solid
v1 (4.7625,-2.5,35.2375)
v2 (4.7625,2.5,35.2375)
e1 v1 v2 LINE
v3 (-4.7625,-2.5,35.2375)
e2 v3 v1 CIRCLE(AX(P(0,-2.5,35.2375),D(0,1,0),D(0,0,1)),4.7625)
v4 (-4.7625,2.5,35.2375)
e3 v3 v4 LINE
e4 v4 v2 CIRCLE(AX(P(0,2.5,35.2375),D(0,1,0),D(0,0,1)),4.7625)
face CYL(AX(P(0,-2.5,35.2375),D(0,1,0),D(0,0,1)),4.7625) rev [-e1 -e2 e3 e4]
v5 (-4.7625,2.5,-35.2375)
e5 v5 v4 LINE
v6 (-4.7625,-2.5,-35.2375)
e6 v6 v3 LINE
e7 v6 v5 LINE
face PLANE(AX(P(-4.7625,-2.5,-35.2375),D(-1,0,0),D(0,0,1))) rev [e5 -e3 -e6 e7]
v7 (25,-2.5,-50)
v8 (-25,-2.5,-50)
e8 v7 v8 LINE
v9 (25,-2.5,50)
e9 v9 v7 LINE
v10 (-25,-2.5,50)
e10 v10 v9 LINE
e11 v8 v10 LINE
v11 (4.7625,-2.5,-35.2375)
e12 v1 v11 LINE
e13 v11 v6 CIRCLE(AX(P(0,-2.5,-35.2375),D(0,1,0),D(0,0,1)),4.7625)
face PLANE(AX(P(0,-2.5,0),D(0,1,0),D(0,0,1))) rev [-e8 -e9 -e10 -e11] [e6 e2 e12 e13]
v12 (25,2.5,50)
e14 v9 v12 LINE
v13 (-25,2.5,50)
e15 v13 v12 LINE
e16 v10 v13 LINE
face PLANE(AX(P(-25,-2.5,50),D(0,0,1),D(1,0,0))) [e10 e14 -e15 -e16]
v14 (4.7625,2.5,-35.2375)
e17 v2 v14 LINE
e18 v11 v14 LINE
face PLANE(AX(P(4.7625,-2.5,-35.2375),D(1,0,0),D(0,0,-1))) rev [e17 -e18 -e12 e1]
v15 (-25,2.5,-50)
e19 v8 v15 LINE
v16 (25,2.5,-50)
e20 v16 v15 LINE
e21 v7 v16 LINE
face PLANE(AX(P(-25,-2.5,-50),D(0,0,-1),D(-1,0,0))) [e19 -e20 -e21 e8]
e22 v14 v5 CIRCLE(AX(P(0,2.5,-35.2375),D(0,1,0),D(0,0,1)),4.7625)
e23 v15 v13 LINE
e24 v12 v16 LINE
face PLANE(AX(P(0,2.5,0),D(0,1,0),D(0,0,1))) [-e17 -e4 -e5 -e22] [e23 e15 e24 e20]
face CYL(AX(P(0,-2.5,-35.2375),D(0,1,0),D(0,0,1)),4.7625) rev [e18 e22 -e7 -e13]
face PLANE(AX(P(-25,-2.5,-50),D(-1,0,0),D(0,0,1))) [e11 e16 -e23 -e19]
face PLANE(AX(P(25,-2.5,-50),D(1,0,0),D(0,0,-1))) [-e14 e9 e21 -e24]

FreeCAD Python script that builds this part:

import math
import FreeCAD as App
import Part
import Sketcher

V = App.Vector
Q = App.Units.Quantity


def add_polygon(sketch, points):
    """Adds a closed chain of lines whose ends are joined by coincident constraints."""
    first, n = sketch.GeometryCount, len(points)
    for a, b in zip(points, points[1:] + points[:1]):
        sketch.addGeometry(Part.LineSegment(App.Vector(*a, 0), App.Vector(*b, 0)), False)
    for i in range(n):
        sketch.addConstraint(Sketcher.Constraint("Coincident", first + i, 2, first + (i + 1) % n, 1))

doc = App.newDocument("Part")
params = doc.addObject("Spreadsheet::Sheet", "Params")
for row, (alias, value) in enumerate([
    ("sketch1_width", "50 mm"),
    ("sketch1_height", "100 mm"),
    ("pad1_length", "2.5 mm"),
    ("pad1_length2", "2.5 mm"),
], start=1):
    params.set(f"A{row}", alias)
    params.set(f"B{row}", "=" + value)
    params.setAlias(f"B{row}", alias)

body = doc.addObject("PartDesign::Body", "Body")

sketch1 = body.newObject("Sketcher::SketchObject", "Sketch")
sketch1.AttachmentSupport = (doc.getObject("XZ_Plane"), [""])
sketch1.MapMode = "FlatFace"
add_polygon(sketch1, [(-25, -50), (-25, 50), (25, 50), (25, -50)])
sketch1.addGeometry(Part.ArcOfCircle(Part.Circle(V(0, -35.2, 0), V(0, 0, 1), 4.8), math.radians(180), math.radians(360)), False)
sketch1.addGeometry(Part.LineSegment(V(4.8, -35.2, 0), V(4.8, 35.2, 0)), False)
sketch1.addGeometry(Part.ArcOfCircle(Part.Circle(V(0, 35.2, 0), V(0, 0, 1), 4.8), math.radians(0), math.radians(180)), False)
sketch1.addGeometry(Part.LineSegment(V(-4.8, 35.2, 0), V(-4.8, -35.2, 0)), False)
sketch1.addConstraint(Sketcher.Constraint("Tangent", 4, 2, 5, 1))
sketch1.addConstraint(Sketcher.Constraint("Tangent", 5, 2, 6, 1))
sketch1.addConstraint(Sketcher.Constraint("Tangent", 6, 2, 7, 1))
sketch1.addConstraint(Sketcher.Constraint("Tangent", 7, 2, 4, 1))
sketch1.addConstraint(Sketcher.Constraint("Vertical", 0))
sketch1.addConstraint(Sketcher.Constraint("Horizontal", 1))
sketch1.addConstraint(Sketcher.Constraint("Vertical", 2))
sketch1.addConstraint(Sketcher.Constraint("Horizontal", 3))
sketch1.addConstraint(Sketcher.Constraint("Vertical", 5))
sketch1.addConstraint(Sketcher.Constraint("Vertical", 7))
sketch1.addConstraint(Sketcher.Constraint("Symmetric", 4, 3, 6, 3, -1, 1))
sketch1.addConstraint(Sketcher.Constraint("Symmetric", 0, 2, 2, 2, -1, 1))
sketch1.addConstraint(Sketcher.Constraint("DistanceX", 1, 1, 1, 2, Q("50 mm")))
sketch1.addConstraint(Sketcher.Constraint("DistanceY", 0, 1, 0, 2, Q("100 mm")))
sketch1.addConstraint(Sketcher.Constraint("Radius", 4, Q("4.7625 mm")))
sketch1.addConstraint(Sketcher.Constraint("DistanceY", 5, 1, 5, 2, Q("70.475 mm")))
sketch1.setExpression("Constraints[16]", "Params.sketch1_width")
sketch1.setExpression("Constraints[17]", "Params.sketch1_height")
pad1 = body.newObject("PartDesign::Pad", "Pad")
pad1.Profile = sketch1
pad1.Type = "TwoLengths"
pad1.setExpression("Length", "Params.pad1_length")
pad1.setExpression("Length2", "Params.pad1_length2")
pad1.Reversed = True

doc.recompute()
